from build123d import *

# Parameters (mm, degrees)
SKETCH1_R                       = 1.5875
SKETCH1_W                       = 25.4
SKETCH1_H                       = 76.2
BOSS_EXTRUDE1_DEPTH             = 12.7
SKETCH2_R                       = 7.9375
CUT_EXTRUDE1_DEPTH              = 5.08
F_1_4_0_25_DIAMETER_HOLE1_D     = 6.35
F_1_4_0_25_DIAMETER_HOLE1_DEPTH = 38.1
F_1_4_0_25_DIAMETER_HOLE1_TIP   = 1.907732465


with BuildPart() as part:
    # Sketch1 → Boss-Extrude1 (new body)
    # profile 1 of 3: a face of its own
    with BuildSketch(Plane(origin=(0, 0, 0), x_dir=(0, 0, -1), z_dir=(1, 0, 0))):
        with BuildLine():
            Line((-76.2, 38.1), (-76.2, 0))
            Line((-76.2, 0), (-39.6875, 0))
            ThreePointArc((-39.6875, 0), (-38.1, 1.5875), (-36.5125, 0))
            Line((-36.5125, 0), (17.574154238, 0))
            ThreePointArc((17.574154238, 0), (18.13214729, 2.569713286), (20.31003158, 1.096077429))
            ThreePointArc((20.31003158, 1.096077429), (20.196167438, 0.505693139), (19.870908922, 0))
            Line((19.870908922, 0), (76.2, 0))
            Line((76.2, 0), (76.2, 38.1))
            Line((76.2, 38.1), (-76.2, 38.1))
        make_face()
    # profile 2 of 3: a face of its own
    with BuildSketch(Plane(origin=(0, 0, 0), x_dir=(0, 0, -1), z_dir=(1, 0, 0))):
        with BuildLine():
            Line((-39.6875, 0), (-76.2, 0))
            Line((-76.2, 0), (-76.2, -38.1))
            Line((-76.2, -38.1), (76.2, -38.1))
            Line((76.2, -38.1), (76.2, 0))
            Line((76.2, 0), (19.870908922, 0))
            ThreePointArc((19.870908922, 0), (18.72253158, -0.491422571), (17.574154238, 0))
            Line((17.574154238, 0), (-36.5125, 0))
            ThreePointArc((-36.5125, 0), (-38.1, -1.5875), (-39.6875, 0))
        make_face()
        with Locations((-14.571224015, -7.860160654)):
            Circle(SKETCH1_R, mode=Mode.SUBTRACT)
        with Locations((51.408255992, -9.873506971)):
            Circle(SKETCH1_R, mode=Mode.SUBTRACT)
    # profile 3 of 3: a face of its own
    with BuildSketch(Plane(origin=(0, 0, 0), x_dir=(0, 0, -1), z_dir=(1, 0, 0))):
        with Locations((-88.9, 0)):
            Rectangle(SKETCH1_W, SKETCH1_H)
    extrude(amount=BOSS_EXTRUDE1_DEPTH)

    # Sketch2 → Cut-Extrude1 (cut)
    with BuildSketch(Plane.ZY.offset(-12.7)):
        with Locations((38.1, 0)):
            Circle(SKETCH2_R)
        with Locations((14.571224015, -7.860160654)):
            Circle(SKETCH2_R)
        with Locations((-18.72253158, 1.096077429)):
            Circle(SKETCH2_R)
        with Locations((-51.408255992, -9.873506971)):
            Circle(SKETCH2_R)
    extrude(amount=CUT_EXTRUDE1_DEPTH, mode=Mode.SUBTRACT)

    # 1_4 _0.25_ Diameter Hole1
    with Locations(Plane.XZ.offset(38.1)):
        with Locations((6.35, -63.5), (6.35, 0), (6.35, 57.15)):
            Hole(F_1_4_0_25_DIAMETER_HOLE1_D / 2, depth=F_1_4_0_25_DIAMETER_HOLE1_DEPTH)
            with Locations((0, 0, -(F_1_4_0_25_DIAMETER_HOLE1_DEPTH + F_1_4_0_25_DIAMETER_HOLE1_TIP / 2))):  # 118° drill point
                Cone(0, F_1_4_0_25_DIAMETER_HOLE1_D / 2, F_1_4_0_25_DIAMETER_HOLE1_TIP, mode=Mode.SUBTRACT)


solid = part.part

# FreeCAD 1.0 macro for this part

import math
import FreeCAD as App
import Part
import Sketcher
Q = App.Units.Quantity

doc = App.newDocument("Part")
body = doc.addObject("PartDesign::Body", "Body")

sketch1 = body.newObject("Sketcher::SketchObject", "Sketch")
sketch1.AttachmentSupport = (doc.getObject("YZ_Plane"), [""])
sketch1.MapMode = "FlatFace"
sketch1.addGeometry(Part.LineSegment(App.Vector(38.1, -76.2, 0), App.Vector(38.1, 101.6, 0)), False)
sketch1.addGeometry(Part.LineSegment(App.Vector(38.1, 101.6, 0), App.Vector(-38.1, 101.6, 0)), False)
sketch1.addGeometry(Part.LineSegment(App.Vector(-38.1, 101.6, 0), App.Vector(-38.1, -76.2, 0)), False)
sketch1.addGeometry(Part.LineSegment(App.Vector(-38.1, -76.2, 0), App.Vector(38.1, -76.2, 0)), False)
sketch1.addGeometry(Part.Circle(App.Vector(0, 38.1, 0), App.Vector(0, 0, 1), 1.6), False)
sketch1.addGeometry(Part.ArcOfCircle(Part.Circle(App.Vector(1.1, -18.7, 0), App.Vector(0, 0, 1), 1.6), math.radians(-90), math.radians(134)), False)
sketch1.addGeometry(Part.ArcOfCircle(Part.Circle(App.Vector(1.1, -18.7, 0), App.Vector(0, 0, 1), 1.6), math.radians(-134), math.radians(-90)), False)
sketch1.addGeometry(Part.ArcOfCircle(Part.Circle(App.Vector(1.1, -18.7, 0), App.Vector(0, 0, 1), 1.6), math.radians(134), math.radians(226)), False)
sketch1.addGeometry(Part.Circle(App.Vector(-7.9, 14.6, 0), App.Vector(0, 0, 1), 1.6), False)
sketch1.addGeometry(Part.Circle(App.Vector(-9.9, -51.4, 0), App.Vector(0, 0, 1), 1.6), False)
sketch1.addConstraint(Sketcher.Constraint("Coincident", 0, 2, 1, 1))
sketch1.addConstraint(Sketcher.Constraint("Coincident", 1, 2, 2, 1))
sketch1.addConstraint(Sketcher.Constraint("Coincident", 2, 2, 3, 1))
sketch1.addConstraint(Sketcher.Constraint("Coincident", 3, 2, 0, 1))
sketch1.addConstraint(Sketcher.Constraint("Tangent", 5, 1, 6, 2))
sketch1.addConstraint(Sketcher.Constraint("Tangent", 6, 1, 7, 2))
sketch1.addConstraint(Sketcher.Constraint("Tangent", 7, 1, 5, 2))
sketch1.addConstraint(Sketcher.Constraint("Vertical", 0))
sketch1.addConstraint(Sketcher.Constraint("Horizontal", 1))
sketch1.addConstraint(Sketcher.Constraint("Vertical", 2))
sketch1.addConstraint(Sketcher.Constraint("Horizontal", 3))
sketch1.addConstraint(Sketcher.Constraint("Equal", 4, 5))
sketch1.addConstraint(Sketcher.Constraint("Equal", 7, 8))
sketch1.addConstraint(Sketcher.Constraint("Equal", 8, 9))
sketch1.addConstraint(Sketcher.Constraint("PointOnObject", 4, 3, -2))
sketch1.addConstraint(Sketcher.Constraint("PointOnObject", 6, 1, -2))
sketch1.addConstraint(Sketcher.Constraint("PointOnObject", 7, 1, -2))
sketch1.addConstraint(Sketcher.Constraint("Vertical", 7, 3, 5, 1))
sketch1.addConstraint(Sketcher.Constraint("DistanceX", 1, 2, 1, 1, Q("3 in")))
sketch1.addConstraint(Sketcher.Constraint("DistanceY", 0, 1, 0, 2, Q("7 in")))
sketch1.addConstraint(Sketcher.Constraint("Diameter", 4, Q("0.125 in")))
sketch1.addConstraint(Sketcher.Constraint("DistanceY", -1, 1, 0, 2, Q("4 in")))
sketch1.addConstraint(Sketcher.Constraint("DistanceY", -1, 1, 4, 3, Q("1.5 in")))
sketch1.addConstraint(Sketcher.Constraint("DistanceX", -1, 1, 0, 2, Q("1.5 in")))
sketch1.addConstraint(Sketcher.Constraint("DistanceY", 5, 3, -1, 1, Q("18.722532 mm")))
sketch1.addConstraint(Sketcher.Constraint("DistanceX", 8, 3, -1, 1, Q("7.860161 mm")))
sketch1.addConstraint(Sketcher.Constraint("DistanceY", 6, 1, -1, 1, Q("19.870909 mm")))
sketch1.addConstraint(Sketcher.Constraint("DistanceY", 9, 3, 8, 3, Q("65.97948 mm")))
sketch1.addConstraint(Sketcher.Constraint("DistanceY", -1, 1, 8, 3, Q("14.571224 mm")))
sketch1.addConstraint(Sketcher.Constraint("DistanceX", 9, 3, -1, 1, Q("9.873507 mm")))
pad1 = body.newObject("PartDesign::Pad", "Pad")
pad1.Profile = sketch1
pad1.Length = Q("0.5 in")

sketch2 = body.newObject("Sketcher::SketchObject", "Sketch001")
sketch2.AttachmentSupport = (doc.getObject("YZ_Plane"), [""])
sketch2.MapMode = "FlatFace"
sketch2.AttachmentOffset = App.Placement(App.Vector(0, 0, 0.5 * 25.4), App.Rotation())
sketch2.addGeometry(Part.Circle(App.Vector(0, 38, 0), App.Vector(0, 0, 1), 8), False)
sketch2.addGeometry(Part.Circle(App.Vector(-8, 15, 0), App.Vector(0, 0, 1), 8), False)
sketch2.addGeometry(Part.Circle(App.Vector(1, -19, 0), App.Vector(0, 0, 1), 8), False)
sketch2.addGeometry(Part.Circle(App.Vector(-10, -51, 0), App.Vector(0, 0, 1), 8), False)
sketch2.addConstraint(Sketcher.Constraint("Equal", 0, 1))
sketch2.addConstraint(Sketcher.Constraint("Equal", 1, 2))
sketch2.addConstraint(Sketcher.Constraint("Equal", 2, 3))
sketch2.addConstraint(Sketcher.Constraint("PointOnObject", 0, 3, -2))
sketch2.addConstraint(Sketcher.Constraint("Diameter", 0, Q("0.625 in")))
sketch2.addConstraint(Sketcher.Constraint("DistanceY", -1, 1, 0, 3, Q("1.5 in")))
sketch2.addConstraint(Sketcher.Constraint("DistanceX", 1, 3, -1, 1, Q("7.860161 mm")))
sketch2.addConstraint(Sketcher.Constraint("DistanceY", 2, 3, -1, 1, Q("18.722532 mm")))
sketch2.addConstraint(Sketcher.Constraint("DistanceX", 1, 3, 2, 3, Q("8.956238 mm")))
sketch2.addConstraint(Sketcher.Constraint("DistanceY", 3, 3, 1, 3, Q("65.97948 mm")))
sketch2.addConstraint(Sketcher.Constraint("DistanceY", -1, 1, 1, 3, Q("14.571224 mm")))
sketch2.addConstraint(Sketcher.Constraint("DistanceX", 3, 3, -1, 1, Q("9.873507 mm")))
pocket1 = body.newObject("PartDesign::Pocket", "Pocket")
pocket1.Profile = sketch2
pocket1.Length = Q("0.2 in")

sketch3 = body.newObject("Sketcher::SketchObject", "Sketch002")
sketch3.AttachmentSupport = (doc.getObject("XZ_Plane"), [""])
sketch3.MapMode = "FlatFace"
sketch3.AttachmentOffset = App.Placement(App.Vector(0, 0, 1.5 * 25.4), App.Rotation())
sketch3.addGeometry(Part.Circle(App.Vector(6.3, -63.5, 0), App.Vector(0, 0, 1), 3.2), False)
sketch3.addGeometry(Part.Circle(App.Vector(6.3, 0, 0), App.Vector(0, 0, 1), 3.2), False)
sketch3.addGeometry(Part.Circle(App.Vector(6.3, 57.1, 0), App.Vector(0, 0, 1), 3.2), False)
sketch3.addConstraint(Sketcher.Constraint("Equal", 0, 1))
sketch3.addConstraint(Sketcher.Constraint("Equal", 1, 2))
sketch3.addConstraint(Sketcher.Constraint("PointOnObject", 1, 3, -1))
sketch3.addConstraint(Sketcher.Constraint("Vertical", 0, 3, 1, 3))
sketch3.addConstraint(Sketcher.Constraint("Vertical", 1, 3, 2, 3))
sketch3.addConstraint(Sketcher.Constraint("Diameter", 0, Q("0.25 in")))
sketch3.addConstraint(Sketcher.Constraint("DistanceY", 0, 3, -1, 1, Q("2.5 in")))
sketch3.addConstraint(Sketcher.Constraint("DistanceX", -1, 1, 0, 3, Q("0.25 in")))
sketch3.addConstraint(Sketcher.Constraint("DistanceY", -1, 1, 2, 3, Q("2.25 in")))
doc.recompute()
hole = body.newObject("PartDesign::Hole", "Hole")
hole.Profile = sketch3
hole.ThreadType = "None"
hole.Diameter = Q("0.25 in")
hole.DepthType = "Dimension"
hole.Depth = Q("1.5 in")
hole.DrillPoint = "Angled"
hole.DrillPointAngle = 118

doc.recompute()
